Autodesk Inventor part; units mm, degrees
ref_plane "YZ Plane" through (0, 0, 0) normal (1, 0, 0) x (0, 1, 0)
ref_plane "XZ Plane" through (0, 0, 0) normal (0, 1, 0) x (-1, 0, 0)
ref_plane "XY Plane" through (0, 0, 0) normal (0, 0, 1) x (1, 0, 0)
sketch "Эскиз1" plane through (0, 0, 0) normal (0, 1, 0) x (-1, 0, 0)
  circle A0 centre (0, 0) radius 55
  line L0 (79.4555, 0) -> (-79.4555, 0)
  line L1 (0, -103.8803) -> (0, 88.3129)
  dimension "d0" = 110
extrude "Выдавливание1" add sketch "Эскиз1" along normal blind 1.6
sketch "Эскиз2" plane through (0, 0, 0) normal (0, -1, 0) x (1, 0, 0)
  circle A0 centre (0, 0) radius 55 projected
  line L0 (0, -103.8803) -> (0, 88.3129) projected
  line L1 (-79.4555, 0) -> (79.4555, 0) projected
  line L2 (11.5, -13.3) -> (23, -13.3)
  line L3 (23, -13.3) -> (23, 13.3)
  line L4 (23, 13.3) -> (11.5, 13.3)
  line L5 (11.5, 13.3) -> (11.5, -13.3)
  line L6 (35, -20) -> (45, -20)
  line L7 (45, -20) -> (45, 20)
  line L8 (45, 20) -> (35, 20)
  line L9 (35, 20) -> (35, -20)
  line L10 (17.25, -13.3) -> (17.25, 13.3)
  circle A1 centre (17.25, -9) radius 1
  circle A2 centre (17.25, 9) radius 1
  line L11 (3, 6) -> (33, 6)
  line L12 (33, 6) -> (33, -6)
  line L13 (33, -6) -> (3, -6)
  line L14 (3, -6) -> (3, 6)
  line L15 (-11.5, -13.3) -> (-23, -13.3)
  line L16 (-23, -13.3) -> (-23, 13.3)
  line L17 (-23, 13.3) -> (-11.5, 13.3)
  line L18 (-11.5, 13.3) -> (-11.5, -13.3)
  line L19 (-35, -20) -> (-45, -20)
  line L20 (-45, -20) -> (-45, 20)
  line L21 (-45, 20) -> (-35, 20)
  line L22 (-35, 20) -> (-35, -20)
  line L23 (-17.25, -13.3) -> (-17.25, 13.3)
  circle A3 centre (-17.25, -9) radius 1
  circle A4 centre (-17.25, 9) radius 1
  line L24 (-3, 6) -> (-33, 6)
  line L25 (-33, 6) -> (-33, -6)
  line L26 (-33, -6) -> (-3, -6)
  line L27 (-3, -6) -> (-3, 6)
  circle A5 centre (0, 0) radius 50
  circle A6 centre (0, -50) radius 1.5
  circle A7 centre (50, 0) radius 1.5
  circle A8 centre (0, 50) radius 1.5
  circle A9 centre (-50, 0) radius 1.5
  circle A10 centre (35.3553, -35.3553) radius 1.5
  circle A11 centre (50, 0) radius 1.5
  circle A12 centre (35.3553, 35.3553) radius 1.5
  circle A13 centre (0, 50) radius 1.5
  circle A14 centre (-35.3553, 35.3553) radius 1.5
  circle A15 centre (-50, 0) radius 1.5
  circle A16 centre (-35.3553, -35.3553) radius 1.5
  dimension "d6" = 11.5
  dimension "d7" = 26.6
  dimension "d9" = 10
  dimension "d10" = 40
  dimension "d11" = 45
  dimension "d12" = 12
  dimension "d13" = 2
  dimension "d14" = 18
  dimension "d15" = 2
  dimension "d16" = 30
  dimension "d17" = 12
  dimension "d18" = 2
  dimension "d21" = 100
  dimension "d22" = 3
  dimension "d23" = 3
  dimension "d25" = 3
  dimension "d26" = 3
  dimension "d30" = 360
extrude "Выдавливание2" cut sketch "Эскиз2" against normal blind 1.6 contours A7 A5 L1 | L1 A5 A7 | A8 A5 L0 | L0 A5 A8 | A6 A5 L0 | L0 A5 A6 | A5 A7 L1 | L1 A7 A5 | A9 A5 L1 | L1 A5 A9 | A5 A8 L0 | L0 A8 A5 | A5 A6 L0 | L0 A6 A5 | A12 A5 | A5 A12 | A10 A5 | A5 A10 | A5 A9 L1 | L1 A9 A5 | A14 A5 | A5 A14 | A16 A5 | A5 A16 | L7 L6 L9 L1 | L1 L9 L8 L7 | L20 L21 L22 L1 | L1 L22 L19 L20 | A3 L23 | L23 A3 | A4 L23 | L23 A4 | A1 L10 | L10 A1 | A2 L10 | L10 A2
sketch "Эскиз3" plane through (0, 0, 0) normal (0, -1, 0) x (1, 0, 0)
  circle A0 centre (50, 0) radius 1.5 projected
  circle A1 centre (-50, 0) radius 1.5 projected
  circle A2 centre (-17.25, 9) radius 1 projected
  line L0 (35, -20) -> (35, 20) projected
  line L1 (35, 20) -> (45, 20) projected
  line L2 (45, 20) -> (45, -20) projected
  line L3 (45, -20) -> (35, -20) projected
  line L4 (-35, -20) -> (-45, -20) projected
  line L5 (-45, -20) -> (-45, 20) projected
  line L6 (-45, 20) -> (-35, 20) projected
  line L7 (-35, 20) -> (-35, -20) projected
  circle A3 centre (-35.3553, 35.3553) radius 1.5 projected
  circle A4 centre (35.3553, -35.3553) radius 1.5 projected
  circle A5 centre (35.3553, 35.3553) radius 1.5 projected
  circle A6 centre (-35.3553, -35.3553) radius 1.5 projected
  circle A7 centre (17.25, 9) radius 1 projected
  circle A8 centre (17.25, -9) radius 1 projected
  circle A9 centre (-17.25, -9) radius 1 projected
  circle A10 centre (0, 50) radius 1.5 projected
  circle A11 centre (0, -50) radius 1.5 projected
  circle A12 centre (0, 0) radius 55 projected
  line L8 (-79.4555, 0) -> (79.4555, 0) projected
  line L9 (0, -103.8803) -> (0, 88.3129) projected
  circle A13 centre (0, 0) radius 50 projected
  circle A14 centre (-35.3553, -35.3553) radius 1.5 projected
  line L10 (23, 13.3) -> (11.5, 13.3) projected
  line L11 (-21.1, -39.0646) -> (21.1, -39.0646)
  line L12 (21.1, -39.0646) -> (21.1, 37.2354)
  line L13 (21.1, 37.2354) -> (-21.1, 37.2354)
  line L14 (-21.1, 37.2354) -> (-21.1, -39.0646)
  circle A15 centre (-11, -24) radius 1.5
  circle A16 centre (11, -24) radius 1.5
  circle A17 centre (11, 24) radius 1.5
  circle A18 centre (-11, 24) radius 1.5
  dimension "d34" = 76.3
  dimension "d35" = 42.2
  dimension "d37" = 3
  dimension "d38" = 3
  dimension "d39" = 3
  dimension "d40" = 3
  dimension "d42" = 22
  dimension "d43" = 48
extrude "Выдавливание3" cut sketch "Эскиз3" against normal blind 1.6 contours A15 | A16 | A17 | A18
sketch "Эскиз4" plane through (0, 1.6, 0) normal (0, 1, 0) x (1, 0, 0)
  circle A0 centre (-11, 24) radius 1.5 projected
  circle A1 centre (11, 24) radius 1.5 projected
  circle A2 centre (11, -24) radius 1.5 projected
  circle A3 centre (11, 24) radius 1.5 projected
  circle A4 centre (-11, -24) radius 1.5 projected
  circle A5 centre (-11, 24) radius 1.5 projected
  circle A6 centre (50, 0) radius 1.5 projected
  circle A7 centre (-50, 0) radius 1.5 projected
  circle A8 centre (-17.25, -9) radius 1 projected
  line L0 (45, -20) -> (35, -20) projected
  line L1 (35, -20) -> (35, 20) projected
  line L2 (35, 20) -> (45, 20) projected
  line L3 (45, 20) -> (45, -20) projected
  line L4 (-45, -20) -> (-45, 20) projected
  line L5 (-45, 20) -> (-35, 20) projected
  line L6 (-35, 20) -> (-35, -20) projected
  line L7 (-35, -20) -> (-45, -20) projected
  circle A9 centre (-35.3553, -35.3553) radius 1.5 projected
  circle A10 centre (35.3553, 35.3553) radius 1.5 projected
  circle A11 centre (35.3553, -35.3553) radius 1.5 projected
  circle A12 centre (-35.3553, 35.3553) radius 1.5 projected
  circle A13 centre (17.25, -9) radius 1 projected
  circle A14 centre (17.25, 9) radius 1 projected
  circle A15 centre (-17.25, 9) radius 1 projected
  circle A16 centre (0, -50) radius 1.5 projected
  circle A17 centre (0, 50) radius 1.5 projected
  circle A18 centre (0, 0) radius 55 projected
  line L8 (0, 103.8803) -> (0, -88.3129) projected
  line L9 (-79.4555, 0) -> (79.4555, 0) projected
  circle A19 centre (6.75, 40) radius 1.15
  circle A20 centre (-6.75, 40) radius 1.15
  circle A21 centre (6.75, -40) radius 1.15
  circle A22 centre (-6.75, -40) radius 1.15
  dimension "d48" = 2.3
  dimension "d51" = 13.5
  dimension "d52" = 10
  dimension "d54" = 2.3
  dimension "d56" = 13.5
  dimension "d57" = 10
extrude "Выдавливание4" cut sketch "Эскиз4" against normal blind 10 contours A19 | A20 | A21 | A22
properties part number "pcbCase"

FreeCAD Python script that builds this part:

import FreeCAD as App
import Part
import Sketcher

V = App.Vector
Q = App.Units.Quantity


def add_polygon(sketch, points):
    """Adds a closed chain of lines whose ends are joined by coincident constraints."""
    first, n = sketch.GeometryCount, len(points)
    for a, b in zip(points, points[1:] + points[:1]):
        sketch.addGeometry(Part.LineSegment(App.Vector(*a, 0), App.Vector(*b, 0)), False)
    for i in range(n):
        sketch.addConstraint(Sketcher.Constraint("Coincident", first + i, 2, first + (i + 1) % n, 1))

doc = App.newDocument("Part")
params = doc.addObject("Spreadsheet::Sheet", "Params")
for row, (alias, value) in enumerate([
    ("sketch1_diameter", "110 mm"),
    ("pad1_length", "1.6 mm"),
    ("sketch2_diameter", "3 mm"),
    ("sketch2_diameter2", "2 mm"),
    ("sketch2_width", "10 mm"),
    ("sketch2_height", "40 mm"),
    ("pocket1_length", "1.6 mm"),
    ("sketch3_diameter", "3 mm"),
    ("pocket2_length", "1.6 mm"),
    ("sketch4_diameter", "2.3 mm"),
    ("pocket3_length", "10 mm"),
], start=1):
    params.set(f"A{row}", alias)
    params.set(f"B{row}", "=" + value)
    params.setAlias(f"B{row}", alias)

body = doc.addObject("PartDesign::Body", "Body")

sketch1 = doc.addObject("Sketcher::SketchObject", "Sketch")
body.addObject(sketch1)
sketch1.AttachmentSupport = (doc.XZ_Plane, [""])
sketch1.MapMode = "FlatFace"
sketch1.addGeometry(Part.Circle(V(0, 0, 0), V(0, 0, 1), 55), False)
sketch1.addConstraint([
    Sketcher.Constraint("Coincident", 0, 3, -1, 1),
    Sketcher.Constraint("Diameter", 0, Q("110 mm")),
])
sketch1.setExpression("Constraints[1]", "Params.sketch1_diameter")
pad1 = doc.addObject("PartDesign::Pad", "Pad")
body.addObject(pad1)
pad1.Profile = sketch1
pad1.setExpression("Length", "Params.pad1_length")
pad1.Reversed = True

sketch2 = doc.addObject("Sketcher::SketchObject", "Sketch001")
body.addObject(sketch2)
sketch2.AttachmentSupport = (doc.XZ_Plane, [""])
sketch2.MapMode = "FlatFace"
sketch2.addGeometry(Part.Circle(V(50, 0, 0), V(0, 0, 1), 1.5), False)
sketch2.addGeometry(Part.Circle(V(0, 50, 0), V(0, 0, 1), 1.5), False)
sketch2.addGeometry(Part.Circle(V(0, -50, 0), V(0, 0, 1), 1.5), False)
sketch2.addGeometry(Part.Circle(V(-50, 0, 0), V(0, 0, 1), 1.5), False)
sketch2.addGeometry(Part.Circle(V(35.4, 35.4, 0), V(0, 0, 1), 1.5), False)
sketch2.addGeometry(Part.Circle(V(35.4, -35.4, 0), V(0, 0, 1), 1.5), False)
sketch2.addGeometry(Part.Circle(V(-35.4, 35.4, 0), V(0, 0, 1), 1.5), False)
sketch2.addGeometry(Part.Circle(V(-35.4, -35.4, 0), V(0, 0, 1), 1.5), False)
add_polygon(sketch2, [(45, -20), (45, 20), (35, 20), (35, -20)])
add_polygon(sketch2, [(-45, 20), (-45, -20), (-35, -20), (-35, 20)])
sketch2.addGeometry(Part.Circle(V(-17.2, -9, 0), V(0, 0, 1), 1), False)
sketch2.addGeometry(Part.Circle(V(-17.2, 9, 0), V(0, 0, 1), 1), False)
sketch2.addGeometry(Part.Circle(V(17.2, -9, 0), V(0, 0, 1), 1), False)
sketch2.addGeometry(Part.Circle(V(17.2, 9, 0), V(0, 0, 1), 1), False)
sketch2.addConstraint([
    Sketcher.Constraint("Vertical", 8),
    Sketcher.Constraint("Horizontal", 9),
    Sketcher.Constraint("Vertical", 10),
    Sketcher.Constraint("Horizontal", 11),
    Sketcher.Constraint("Vertical", 12),
    Sketcher.Constraint("Horizontal", 13),
    Sketcher.Constraint("Vertical", 14),
    Sketcher.Constraint("Horizontal", 15),
    Sketcher.Constraint("Equal", 0, 1),
    Sketcher.Constraint("Equal", 1, 2),
    Sketcher.Constraint("Equal", 2, 3),
    Sketcher.Constraint("Equal", 3, 4),
    Sketcher.Constraint("Equal", 4, 5),
    Sketcher.Constraint("Equal", 5, 6),
    Sketcher.Constraint("Equal", 6, 7),
    Sketcher.Constraint("Equal", 16, 17),
    Sketcher.Constraint("Equal", 17, 18),
    Sketcher.Constraint("Equal", 18, 19),
    Sketcher.Constraint("Symmetric", 1, 3, 2, 3, -1, 1),
    Sketcher.Constraint("Symmetric", 0, 3, 3, 3, -1, 1),
    Sketcher.Constraint("Symmetric", 5, 3, 6, 3, -1, 1),
    Sketcher.Constraint("Symmetric", 4, 3, 7, 3, -1, 1),
    Sketcher.Constraint("Symmetric", 17, 3, 18, 3, -1, 1),
    Sketcher.Constraint("Symmetric", 16, 3, 19, 3, -1, 1),
    Sketcher.Constraint("Symmetric", 8, 2, 12, 2, -1, 1),
    Sketcher.Constraint("Symmetric", 10, 2, 14, 2, -1, 1),
    Sketcher.Constraint("Symmetric", 4, 3, 6, 3, -2),
    Sketcher.Constraint("Symmetric", 16, 3, 18, 3, -2),
    Sketcher.Constraint("PointOnObject", 0, 3, -1),
    Sketcher.Constraint("PointOnObject", 1, 3, -2),
    Sketcher.Constraint("Horizontal", 11, 2, 12, 2),
    Sketcher.Constraint("Diameter", 0, Q("3 mm")),
    Sketcher.Constraint("Diameter", 16, Q("2 mm")),
    Sketcher.Constraint("DistanceX", 9, 2, 9, 1, Q("10 mm")),
    Sketcher.Constraint("DistanceY", 8, 1, 8, 2, Q("40 mm")),
    Sketcher.Constraint("DistanceX", -1, 1, 8, 2, Q("45 mm")),
    Sketcher.Constraint("DistanceY", 2, 3, 1, 3, Q("100 mm")),
    Sketcher.Constraint("DistanceX", 3, 3, 0, 3, Q("100 mm")),
    Sketcher.Constraint("DistanceY", 16, 3, 17, 3, Q("18 mm")),
    Sketcher.Constraint("DistanceX", 16, 3, 18, 3, Q("34.5 mm")),
    Sketcher.Constraint("DistanceX", -1, 1, 4, 3, Q("35.3553 mm")),
    Sketcher.Constraint("DistanceY", -1, 1, 4, 3, Q("35.3553 mm")),
])
sketch2.setExpression("Constraints[39]", "Params.sketch2_diameter")
sketch2.setExpression("Constraints[40]", "Params.sketch2_diameter2")
sketch2.setExpression("Constraints[41]", "Params.sketch2_width")
sketch2.setExpression("Constraints[42]", "Params.sketch2_height")
pocket1 = doc.addObject("PartDesign::Pocket", "Pocket")
body.addObject(pocket1)
pocket1.Profile = sketch2
pocket1.setExpression("Length", "Params.pocket1_length")

sketch3 = doc.addObject("Sketcher::SketchObject", "Sketch002")
body.addObject(sketch3)
sketch3.AttachmentSupport = (doc.XZ_Plane, [""])
sketch3.MapMode = "FlatFace"
sketch3.addGeometry([
    Part.Circle(V(-11, -24, 0), V(0, 0, 1), 1.5),
    Part.Circle(V(11, -24, 0), V(0, 0, 1), 1.5),
    Part.Circle(V(11, 24, 0), V(0, 0, 1), 1.5),
    Part.Circle(V(-11, 24, 0), V(0, 0, 1), 1.5),
], False)
sketch3.addConstraint([
    Sketcher.Constraint("Equal", 0, 1),
    Sketcher.Constraint("Equal", 1, 2),
    Sketcher.Constraint("Equal", 2, 3),
    Sketcher.Constraint("Symmetric", 0, 3, 2, 3, -1, 1),
    Sketcher.Constraint("Symmetric", 1, 3, 3, 3, -1, 1),
    Sketcher.Constraint("Symmetric", 0, 3, 1, 3, -2),
    Sketcher.Constraint("Diameter", 0, Q("3 mm")),
    Sketcher.Constraint("DistanceX", 0, 3, 1, 3, Q("22 mm")),
    Sketcher.Constraint("DistanceY", 1, 3, 2, 3, Q("48 mm")),
])
sketch3.setExpression("Constraints[6]", "Params.sketch3_diameter")
pocket2 = doc.addObject("PartDesign::Pocket", "Pocket001")
body.addObject(pocket2)
pocket2.Profile = sketch3
pocket2.setExpression("Length", "Params.pocket2_length")

sketch4 = doc.addObject("Sketcher::SketchObject", "Sketch003")
body.addObject(sketch4)
sketch4.AttachmentSupport = (doc.XZ_Plane, [""])
sketch4.MapMode = "FlatFace"
sketch4.AttachmentOffset = App.Placement(V(0, 0, -1.6), App.Rotation())
sketch4.addGeometry([
    Part.Circle(V(6.8, -40, 0), V(0, 0, 1), 1.1),
    Part.Circle(V(-6.8, -40, 0), V(0, 0, 1), 1.1),
    Part.Circle(V(6.8, 40, 0), V(0, 0, 1), 1.1),
    Part.Circle(V(-6.8, 40, 0), V(0, 0, 1), 1.1),
], False)
sketch4.addConstraint([
    Sketcher.Constraint("Equal", 0, 1),
    Sketcher.Constraint("Equal", 1, 2),
    Sketcher.Constraint("Equal", 2, 3),
    Sketcher.Constraint("Symmetric", 1, 3, 2, 3, -1, 1),
    Sketcher.Constraint("Symmetric", 0, 3, 3, 3, -1, 1),
    Sketcher.Constraint("Symmetric", 0, 3, 1, 3, -2),
    Sketcher.Constraint("Diameter", 0, Q("2.3 mm")),
    Sketcher.Constraint("DistanceX", 1, 3, 0, 3, Q("13.5 mm")),
    Sketcher.Constraint("DistanceY", 0, 3, -1, 1, Q("40 mm")),
])
sketch4.setExpression("Constraints[6]", "Params.sketch4_diameter")
pocket3 = doc.addObject("PartDesign::Pocket", "Pocket002")
body.addObject(pocket3)
pocket3.Profile = sketch4
pocket3.setExpression("Length", "Params.pocket3_length")
pocket3.Reversed = True

doc.recompute()
